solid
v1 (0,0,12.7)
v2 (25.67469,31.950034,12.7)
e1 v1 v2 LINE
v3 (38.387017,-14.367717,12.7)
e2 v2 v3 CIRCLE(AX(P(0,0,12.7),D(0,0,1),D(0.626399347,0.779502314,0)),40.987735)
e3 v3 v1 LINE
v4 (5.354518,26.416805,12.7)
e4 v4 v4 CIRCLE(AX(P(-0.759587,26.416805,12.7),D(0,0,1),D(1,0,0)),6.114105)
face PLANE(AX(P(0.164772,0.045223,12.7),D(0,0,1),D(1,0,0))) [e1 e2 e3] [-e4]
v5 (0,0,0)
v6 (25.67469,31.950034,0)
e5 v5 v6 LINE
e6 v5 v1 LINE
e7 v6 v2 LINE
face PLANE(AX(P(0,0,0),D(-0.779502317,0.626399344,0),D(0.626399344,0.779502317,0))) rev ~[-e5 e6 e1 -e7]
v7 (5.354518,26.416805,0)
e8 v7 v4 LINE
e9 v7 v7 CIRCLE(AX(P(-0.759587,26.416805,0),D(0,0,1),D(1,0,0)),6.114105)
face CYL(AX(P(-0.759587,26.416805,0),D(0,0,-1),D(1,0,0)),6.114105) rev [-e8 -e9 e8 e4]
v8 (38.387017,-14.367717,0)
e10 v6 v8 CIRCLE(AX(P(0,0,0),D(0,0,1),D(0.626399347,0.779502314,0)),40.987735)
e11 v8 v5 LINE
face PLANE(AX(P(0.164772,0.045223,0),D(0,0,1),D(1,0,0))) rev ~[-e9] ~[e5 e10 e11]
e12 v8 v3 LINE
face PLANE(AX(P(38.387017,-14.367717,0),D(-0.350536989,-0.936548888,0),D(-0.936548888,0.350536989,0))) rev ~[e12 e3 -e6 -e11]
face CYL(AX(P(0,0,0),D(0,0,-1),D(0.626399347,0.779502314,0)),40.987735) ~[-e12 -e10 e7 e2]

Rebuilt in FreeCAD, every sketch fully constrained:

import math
import FreeCAD as App
import Part
import Sketcher

V = App.Vector
Q = App.Units.Quantity

doc = App.newDocument("Part")
body = doc.addObject("PartDesign::Body", "Body")

# Sketch on XY plane
sketch1 = body.newObject("Sketcher::SketchObject", "Sketch")
sketch1.AttachmentSupport = (doc.getObject("XY_Plane"), [""])
sketch1.MapMode = "FlatFace"
sketch1.addGeometry([
    Part.LineSegment(V(0, 0, 0), V(25.67469, 31.950034, 0)),
    Part.ArcOfCircle(Part.Circle(V(0, 0, 0), V(0, 0, 1), 40.987735), math.radians(51.21503), math.radians(339.479837)),
    Part.LineSegment(V(38.387017, -14.367717, 0), V(0, 0, 0)),
    Part.Circle(V(-0.759587, 26.416805, 0), V(0, 0, 1), 6.114105),
], False)
sketch1.addConstraint([
    Sketcher.Constraint("Coincident", 0, 2, 1, 1),
    Sketcher.Constraint("Coincident", 1, 2, 2, 1),
    Sketcher.Constraint("Coincident", 2, 2, 0, 1),
    Sketcher.Constraint("Coincident", 1, 3, -1, 1),
    Sketcher.Constraint("Coincident", 2, 2, -1, 1),
    Sketcher.Constraint("Diameter", 3, Q("12.22821 mm")),
    Sketcher.Constraint("DistanceX", -1, 1, 1, 2, Q("1.5112999 in")),
    Sketcher.Constraint("Radius", 1, Q("40.987735 mm")),
    Sketcher.Constraint("DistanceX", -1, 1, 0, 2, Q("25.67469 mm")),
    Sketcher.Constraint("DistanceY", 3, 3, 0, 2, Q("5.533229 mm")),
    Sketcher.Constraint("DistanceX", 3, 3, -1, 1, Q("0.759587 mm")),
])
pad1 = body.newObject("PartDesign::Pad", "Pad")
pad1.Profile = sketch1
pad1.Length = Q("0.5 in")

doc.recompute()
